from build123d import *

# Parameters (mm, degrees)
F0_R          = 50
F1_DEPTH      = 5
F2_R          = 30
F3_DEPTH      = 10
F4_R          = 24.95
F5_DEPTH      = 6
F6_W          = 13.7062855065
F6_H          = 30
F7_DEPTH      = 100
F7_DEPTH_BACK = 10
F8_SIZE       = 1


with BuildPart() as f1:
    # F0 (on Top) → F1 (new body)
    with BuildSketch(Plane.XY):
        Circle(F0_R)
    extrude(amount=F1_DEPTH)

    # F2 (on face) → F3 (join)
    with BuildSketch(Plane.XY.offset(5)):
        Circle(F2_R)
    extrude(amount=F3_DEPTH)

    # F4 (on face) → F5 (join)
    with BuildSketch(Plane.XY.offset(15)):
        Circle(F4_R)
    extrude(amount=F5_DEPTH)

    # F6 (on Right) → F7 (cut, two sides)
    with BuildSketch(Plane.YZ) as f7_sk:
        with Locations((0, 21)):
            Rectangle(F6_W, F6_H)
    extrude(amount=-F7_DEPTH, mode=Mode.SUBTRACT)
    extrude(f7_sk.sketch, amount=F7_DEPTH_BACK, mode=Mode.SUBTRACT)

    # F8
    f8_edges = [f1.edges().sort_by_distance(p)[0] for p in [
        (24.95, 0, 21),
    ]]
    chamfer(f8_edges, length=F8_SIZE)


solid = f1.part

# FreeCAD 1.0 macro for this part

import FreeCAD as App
import Part
import Sketcher
from FreeCAD import Vector


def edges_at(feature, points):
    """Names of the edges that pass closest to the given points."""
    edges = feature.Shape.Edges
    near = lambda p: min(range(len(edges)), key=lambda i: edges[i].distToShape(Part.Vertex(*p))[0])
    return sorted({f"Edge{near(p) + 1}" for p in points})

doc = App.newDocument("Part")
body = doc.addObject("PartDesign::Body", "Body")

# Sketch on XY plane
sketch1 = body.newObject("Sketcher::SketchObject", "Sketch")
sketch1.AttachmentSupport = (doc.getObject("XY_Plane"), [""])
sketch1.MapMode = "FlatFace"
sketch1.addGeometry(Part.Circle(Vector(0, 0, 0), Vector(0, 0, 1), 50), False)
sketch1.addConstraint([
    Sketcher.Constraint("Coincident", 0, 3, -1, 1),
    Sketcher.Constraint("Diameter", 0, 100.0),
])
pad1 = body.newObject("PartDesign::Pad", "Pad")
pad1.Profile = sketch1
pad1.Length = 5

# Sketch on XY plane
sketch2 = body.newObject("Sketcher::SketchObject", "Sketch001")
sketch2.AttachmentSupport = (doc.getObject("XY_Plane"), [""])
sketch2.MapMode = "FlatFace"
sketch2.AttachmentOffset = App.Placement(Vector(0, 0, 5), App.Rotation())
sketch2.addGeometry(Part.Circle(Vector(0, 0, 0), Vector(0, 0, 1), 30), False)
sketch2.addConstraint([
    Sketcher.Constraint("Coincident", 0, 3, -1, 1),
    Sketcher.Constraint("Diameter", 0, 60.0),
])
pad2 = body.newObject("PartDesign::Pad", "Pad001")
pad2.Profile = sketch2
pad2.Length = 10

# Sketch on XY plane
sketch3 = body.newObject("Sketcher::SketchObject", "Sketch002")
sketch3.AttachmentSupport = (doc.getObject("XY_Plane"), [""])
sketch3.MapMode = "FlatFace"
sketch3.AttachmentOffset = App.Placement(Vector(0, 0, 15), App.Rotation())
sketch3.addGeometry(Part.Circle(Vector(0, 0, 0), Vector(0, 0, 1), 24.95), False)
sketch3.addConstraint([
    Sketcher.Constraint("Coincident", 0, 3, -1, 1),
    Sketcher.Constraint("Diameter", 0, 49.9),
])
pad3 = body.newObject("PartDesign::Pad", "Pad002")
pad3.Profile = sketch3
pad3.Length = 6

# Sketch on YZ plane
sketch4 = body.newObject("Sketcher::SketchObject", "Sketch003")
sketch4.AttachmentSupport = (doc.getObject("YZ_Plane"), [""])
sketch4.MapMode = "FlatFace"
sketch4.addGeometry([
    Part.LineSegment(Vector(-6.853143, 36, 0), Vector(-6.853143, 6, 0)),
    Part.LineSegment(Vector(-6.853143, 6, 0), Vector(6.853143, 6, 0)),
    Part.LineSegment(Vector(6.853143, 6, 0), Vector(6.853143, 36, 0)),
    Part.LineSegment(Vector(6.853143, 36, 0), Vector(-6.853143, 36, 0)),
], False)
sketch4.addConstraint([
    Sketcher.Constraint("Coincident", 0, 2, 1, 1),
    Sketcher.Constraint("Coincident", 1, 2, 2, 1),
    Sketcher.Constraint("Coincident", 2, 2, 3, 1),
    Sketcher.Constraint("Coincident", 3, 2, 0, 1),
    Sketcher.Constraint("Vertical", 0),
    Sketcher.Constraint("Horizontal", 1),
    Sketcher.Constraint("Vertical", 2),
    Sketcher.Constraint("Horizontal", 3),
    Sketcher.Constraint("DistanceY", 0, 2, 0, 1, 30.0),
    Sketcher.Constraint("DistanceY", -1, 1, 0, 2, 6.0),
    Sketcher.Constraint("DistanceX", 1, 1, 1, 2, 13.706286),
    Sketcher.Constraint("DistanceX", 0, 2, -1, 1, 6.853143),
])
pocket1 = body.newObject("PartDesign::Pocket", "Pocket")
pocket1.Profile = sketch4
pocket1.Type = "TwoLengths"
pocket1.Length = 100
pocket1.Length2 = 10
doc.recompute()

chamfer = body.newObject("PartDesign::Chamfer", "Chamfer")
chamfer.Base = (pocket1, edges_at(pocket1, [(24.95, 0, 21)]))
chamfer.Size = 1

doc.recompute()
